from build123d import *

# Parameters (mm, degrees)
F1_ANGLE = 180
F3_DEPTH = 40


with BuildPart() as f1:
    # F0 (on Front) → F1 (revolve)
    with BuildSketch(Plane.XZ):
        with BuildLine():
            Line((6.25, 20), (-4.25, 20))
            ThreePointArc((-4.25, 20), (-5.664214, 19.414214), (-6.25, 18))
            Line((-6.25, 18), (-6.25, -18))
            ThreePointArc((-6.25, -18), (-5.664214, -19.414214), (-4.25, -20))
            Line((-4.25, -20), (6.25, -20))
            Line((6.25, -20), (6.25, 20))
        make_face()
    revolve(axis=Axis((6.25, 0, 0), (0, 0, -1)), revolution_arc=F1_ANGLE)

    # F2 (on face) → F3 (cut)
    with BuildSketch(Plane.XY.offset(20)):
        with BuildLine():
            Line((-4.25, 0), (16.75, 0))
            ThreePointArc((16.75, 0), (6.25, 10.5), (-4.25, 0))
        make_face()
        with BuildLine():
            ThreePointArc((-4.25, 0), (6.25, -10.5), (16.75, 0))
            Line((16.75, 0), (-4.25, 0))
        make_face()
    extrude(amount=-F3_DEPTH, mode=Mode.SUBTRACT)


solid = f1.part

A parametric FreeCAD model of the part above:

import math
import FreeCAD as App
import Part
import Sketcher

V = App.Vector

doc = App.newDocument("Part")
body = doc.addObject("PartDesign::Body", "Body")

# Sketch on XZ plane
sketch1 = body.newObject("Sketcher::SketchObject", "Sketch")
sketch1.AttachmentSupport = (doc.getObject("XZ_Plane"), [""])
sketch1.MapMode = "FlatFace"
sketch1.addGeometry([
    Part.LineSegment(V(6.2, 20, 0), V(-4.2, 20, 0)),  # 0
    Part.ArcOfCircle(Part.Circle(V(-4.3, 18, 0), V(0, 0, 1), 2), math.radians(90), math.radians(180)),  # 1
    Part.LineSegment(V(-6.2, 18, 0), V(-6.2, -18, 0)),  # 2
    Part.ArcOfCircle(Part.Circle(V(-4.3, -18, 0), V(0, 0, 1), 2), math.radians(180), math.radians(270)),  # 3
    Part.LineSegment(V(-4.2, -20, 0), V(6.2, -20, 0)),  # 4
    Part.LineSegment(V(6.2, -20, 0), V(6.2, 20, 0)),  # 5
], False)
sketch1.addGeometry(Part.LineSegment(V(6.2, 20, 0), V(6.2, -20, 0)), True)  # axis
sketch1.addConstraint([
    Sketcher.Constraint("Tangent", 0, 2, 1, 1),
    Sketcher.Constraint("Tangent", 1, 2, 2, 1),
    Sketcher.Constraint("Tangent", 2, 2, 3, 1),
    Sketcher.Constraint("Tangent", 3, 2, 4, 1),
    Sketcher.Constraint("Coincident", 4, 2, 5, 1),
    Sketcher.Constraint("Coincident", 5, 2, 0, 1),
    Sketcher.Constraint("Horizontal", 0),
    Sketcher.Constraint("Vertical", 2),
    Sketcher.Constraint("Horizontal", 4),
    Sketcher.Constraint("Vertical", 5),
    Sketcher.Constraint("Vertical", 6),
    Sketcher.Constraint("Coincident", 6, 1, 5, 2),
    Sketcher.Constraint("Equal", 1, 3),
    Sketcher.Constraint("Horizontal", 3, 2, 6, 2),
    Sketcher.Constraint("Radius", 1, 1.999999),
    Sketcher.Constraint("DistanceY", 2, 2, 2, 1, 36.0),
    Sketcher.Constraint("DistanceX", 0, 2, 0, 1, 10.5),
    Sketcher.Constraint("DistanceY", -1, 1, 1, 3, 18.000001),
    Sketcher.Constraint("DistanceX", 1, 3, -1, 1, 4.250001),
])
revolution = body.newObject("PartDesign::Revolution", "Revolution")
revolution.Profile = sketch1
revolution.ReferenceAxis = (sketch1, ["Axis0"])
revolution.Angle = 180

# Sketch on XY plane
sketch2 = body.newObject("Sketcher::SketchObject", "Sketch001")
sketch2.AttachmentSupport = (doc.getObject("XY_Plane"), [""])
sketch2.MapMode = "FlatFace"
sketch2.AttachmentOffset = App.Placement(V(0, 0, 20), App.Rotation())
sketch2.addGeometry(Part.Circle(V(6, 0, 0), V(0, 0, 1), 10), False)
sketch2.addConstraint([
    Sketcher.Constraint("PointOnObject", 0, 3, -1),
    Sketcher.Constraint("Diameter", 0, 21.0),
    Sketcher.Constraint("DistanceX", -1, 1, 0, 3, 6.25),
])
pocket1 = body.newObject("PartDesign::Pocket", "Pocket")
pocket1.Profile = sketch2
pocket1.Length = 40

doc.recompute()
